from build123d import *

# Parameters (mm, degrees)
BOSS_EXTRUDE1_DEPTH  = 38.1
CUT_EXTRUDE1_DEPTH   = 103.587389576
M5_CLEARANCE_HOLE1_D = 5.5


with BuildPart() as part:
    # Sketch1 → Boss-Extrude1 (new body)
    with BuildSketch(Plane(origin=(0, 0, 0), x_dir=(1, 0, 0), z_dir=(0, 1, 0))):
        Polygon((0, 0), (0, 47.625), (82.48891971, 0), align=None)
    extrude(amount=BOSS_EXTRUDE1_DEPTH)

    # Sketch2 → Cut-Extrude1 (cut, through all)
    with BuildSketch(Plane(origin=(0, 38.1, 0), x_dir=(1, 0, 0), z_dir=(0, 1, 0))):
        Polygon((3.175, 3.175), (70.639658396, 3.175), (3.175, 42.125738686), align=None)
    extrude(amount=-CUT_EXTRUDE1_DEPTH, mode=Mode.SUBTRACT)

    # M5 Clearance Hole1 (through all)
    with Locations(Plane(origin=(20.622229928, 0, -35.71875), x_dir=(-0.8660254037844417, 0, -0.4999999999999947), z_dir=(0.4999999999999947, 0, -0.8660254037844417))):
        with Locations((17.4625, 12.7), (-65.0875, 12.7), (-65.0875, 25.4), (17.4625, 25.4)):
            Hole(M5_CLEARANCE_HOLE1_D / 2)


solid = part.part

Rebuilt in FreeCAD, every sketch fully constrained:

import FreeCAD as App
import Part
import Sketcher

V = App.Vector
Q = App.Units.Quantity

doc = App.newDocument("Part")
body = doc.addObject("PartDesign::Body", "Body")

# Sketch on XZ plane
sketch1 = body.newObject("Sketcher::SketchObject", "Sketch")
sketch1.AttachmentSupport = (doc.getObject("XZ_Plane"), [""])
sketch1.MapMode = "FlatFace"
sketch1.addGeometry([
    Part.LineSegment(V(0, -48, 0), V(0, 0, 0)),
    Part.LineSegment(V(0, 0, 0), V(82, 0, 0)),
    Part.LineSegment(V(82, 0, 0), V(0, -48, 0)),
], False)
sketch1.addConstraint([
    Sketcher.Constraint("Coincident", 0, 2, 1, 1),
    Sketcher.Constraint("Coincident", 1, 2, 2, 1),
    Sketcher.Constraint("Coincident", 2, 2, 0, 1),
    Sketcher.Constraint("Vertical", 0),
    Sketcher.Constraint("Horizontal", 1),
    Sketcher.Constraint("Coincident", 0, 2, -1, 1),
    Sketcher.Constraint("Angle", 2, Q("-150 deg")),
    Sketcher.Constraint("Distance", 2, Q("3.75 in")),
])
pad1 = body.newObject("PartDesign::Pad", "Pad")
pad1.Profile = sketch1
pad1.Length = Q("1.5 in")
pad1.Reversed = True

# Sketch on XZ plane
sketch2 = body.newObject("Sketcher::SketchObject", "Sketch001")
sketch2.AttachmentSupport = (doc.getObject("XZ_Plane"), [""])
sketch2.MapMode = "FlatFace"
sketch2.AttachmentOffset = App.Placement(V(0, 0, -1.5 * 25.4), App.Rotation())
sketch2.addGeometry([
    Part.LineSegment(V(3, -3, 0), V(71, -3, 0)),
    Part.LineSegment(V(71, -3, 0), V(3, -42, 0)),
    Part.LineSegment(V(3, -42, 0), V(3, -3, 0)),
], False)
sketch2.addConstraint([
    Sketcher.Constraint("Coincident", 0, 2, 1, 1),
    Sketcher.Constraint("Coincident", 1, 2, 2, 1),
    Sketcher.Constraint("Coincident", 2, 2, 0, 1),
    Sketcher.Constraint("Horizontal", 0),
    Sketcher.Constraint("Vertical", 2),
    Sketcher.Constraint("Angle", 1, Q("-150 deg")),
    Sketcher.Constraint("DistanceY", 0, 2, -1, 1, Q("0.125 in")),
    Sketcher.Constraint("DistanceX", -1, 1, 1, 2, Q("0.125 in")),
    Sketcher.Constraint("DistanceX", 0, 1, 0, 2, 67.464658),
])
pocket1 = body.newObject("PartDesign::Pocket", "Pocket")
pocket1.Profile = sketch2
pocket1.Type = "ThroughAll"
pocket1.Reversed = True

# Sketch on an angled plane
sketch3 = body.newObject("Sketcher::SketchObject", "Sketch002")
sketch3.Placement = App.Placement(V(20.62223, 0, -35.71875), App.Rotation(V(-0.866025404, 0, -0.5), V(0, 1, 0), V(0.5, 0, -0.866025404), "ZXY"))
sketch3.addGeometry([
    Part.Circle(V(17.5, 12.7, 0), V(0, 0, 1), 2.8),
    Part.Circle(V(-65.1, 12.7, 0), V(0, 0, 1), 2.8),
    Part.Circle(V(-65.1, 25.4, 0), V(0, 0, 1), 2.8),
    Part.Circle(V(17.5, 25.4, 0), V(0, 0, 1), 2.8),
], False)
sketch3.addConstraint([
    Sketcher.Constraint("Equal", 0, 1),
    Sketcher.Constraint("Equal", 1, 2),
    Sketcher.Constraint("Equal", 2, 3),
    Sketcher.Constraint("Horizontal", 0, 3, 1, 3),
    Sketcher.Constraint("Horizontal", 2, 3, 3, 3),
    Sketcher.Constraint("Vertical", 1, 3, 2, 3),
    Sketcher.Constraint("Vertical", 0, 3, 3, 3),
    Sketcher.Constraint("DistanceY", -1, 1, 2, 3, Q("1 in")),
    Sketcher.Constraint("DistanceY", -1, 1, 0, 3, Q("0.5 in")),
    Sketcher.Constraint("Diameter", 0, 5.5),
    Sketcher.Constraint("DistanceX", 1, 3, 0, 3, Q("3.25 in")),
    Sketcher.Constraint("DistanceX", -1, 1, 0, 3, Q("0.6875 in")),
])
doc.recompute()
hole = body.newObject("PartDesign::Hole", "Hole")
hole.Profile = sketch3
hole.ThreadType = "None"
hole.Diameter = 5.5
hole.DepthType = "ThroughAll"

doc.recompute()
